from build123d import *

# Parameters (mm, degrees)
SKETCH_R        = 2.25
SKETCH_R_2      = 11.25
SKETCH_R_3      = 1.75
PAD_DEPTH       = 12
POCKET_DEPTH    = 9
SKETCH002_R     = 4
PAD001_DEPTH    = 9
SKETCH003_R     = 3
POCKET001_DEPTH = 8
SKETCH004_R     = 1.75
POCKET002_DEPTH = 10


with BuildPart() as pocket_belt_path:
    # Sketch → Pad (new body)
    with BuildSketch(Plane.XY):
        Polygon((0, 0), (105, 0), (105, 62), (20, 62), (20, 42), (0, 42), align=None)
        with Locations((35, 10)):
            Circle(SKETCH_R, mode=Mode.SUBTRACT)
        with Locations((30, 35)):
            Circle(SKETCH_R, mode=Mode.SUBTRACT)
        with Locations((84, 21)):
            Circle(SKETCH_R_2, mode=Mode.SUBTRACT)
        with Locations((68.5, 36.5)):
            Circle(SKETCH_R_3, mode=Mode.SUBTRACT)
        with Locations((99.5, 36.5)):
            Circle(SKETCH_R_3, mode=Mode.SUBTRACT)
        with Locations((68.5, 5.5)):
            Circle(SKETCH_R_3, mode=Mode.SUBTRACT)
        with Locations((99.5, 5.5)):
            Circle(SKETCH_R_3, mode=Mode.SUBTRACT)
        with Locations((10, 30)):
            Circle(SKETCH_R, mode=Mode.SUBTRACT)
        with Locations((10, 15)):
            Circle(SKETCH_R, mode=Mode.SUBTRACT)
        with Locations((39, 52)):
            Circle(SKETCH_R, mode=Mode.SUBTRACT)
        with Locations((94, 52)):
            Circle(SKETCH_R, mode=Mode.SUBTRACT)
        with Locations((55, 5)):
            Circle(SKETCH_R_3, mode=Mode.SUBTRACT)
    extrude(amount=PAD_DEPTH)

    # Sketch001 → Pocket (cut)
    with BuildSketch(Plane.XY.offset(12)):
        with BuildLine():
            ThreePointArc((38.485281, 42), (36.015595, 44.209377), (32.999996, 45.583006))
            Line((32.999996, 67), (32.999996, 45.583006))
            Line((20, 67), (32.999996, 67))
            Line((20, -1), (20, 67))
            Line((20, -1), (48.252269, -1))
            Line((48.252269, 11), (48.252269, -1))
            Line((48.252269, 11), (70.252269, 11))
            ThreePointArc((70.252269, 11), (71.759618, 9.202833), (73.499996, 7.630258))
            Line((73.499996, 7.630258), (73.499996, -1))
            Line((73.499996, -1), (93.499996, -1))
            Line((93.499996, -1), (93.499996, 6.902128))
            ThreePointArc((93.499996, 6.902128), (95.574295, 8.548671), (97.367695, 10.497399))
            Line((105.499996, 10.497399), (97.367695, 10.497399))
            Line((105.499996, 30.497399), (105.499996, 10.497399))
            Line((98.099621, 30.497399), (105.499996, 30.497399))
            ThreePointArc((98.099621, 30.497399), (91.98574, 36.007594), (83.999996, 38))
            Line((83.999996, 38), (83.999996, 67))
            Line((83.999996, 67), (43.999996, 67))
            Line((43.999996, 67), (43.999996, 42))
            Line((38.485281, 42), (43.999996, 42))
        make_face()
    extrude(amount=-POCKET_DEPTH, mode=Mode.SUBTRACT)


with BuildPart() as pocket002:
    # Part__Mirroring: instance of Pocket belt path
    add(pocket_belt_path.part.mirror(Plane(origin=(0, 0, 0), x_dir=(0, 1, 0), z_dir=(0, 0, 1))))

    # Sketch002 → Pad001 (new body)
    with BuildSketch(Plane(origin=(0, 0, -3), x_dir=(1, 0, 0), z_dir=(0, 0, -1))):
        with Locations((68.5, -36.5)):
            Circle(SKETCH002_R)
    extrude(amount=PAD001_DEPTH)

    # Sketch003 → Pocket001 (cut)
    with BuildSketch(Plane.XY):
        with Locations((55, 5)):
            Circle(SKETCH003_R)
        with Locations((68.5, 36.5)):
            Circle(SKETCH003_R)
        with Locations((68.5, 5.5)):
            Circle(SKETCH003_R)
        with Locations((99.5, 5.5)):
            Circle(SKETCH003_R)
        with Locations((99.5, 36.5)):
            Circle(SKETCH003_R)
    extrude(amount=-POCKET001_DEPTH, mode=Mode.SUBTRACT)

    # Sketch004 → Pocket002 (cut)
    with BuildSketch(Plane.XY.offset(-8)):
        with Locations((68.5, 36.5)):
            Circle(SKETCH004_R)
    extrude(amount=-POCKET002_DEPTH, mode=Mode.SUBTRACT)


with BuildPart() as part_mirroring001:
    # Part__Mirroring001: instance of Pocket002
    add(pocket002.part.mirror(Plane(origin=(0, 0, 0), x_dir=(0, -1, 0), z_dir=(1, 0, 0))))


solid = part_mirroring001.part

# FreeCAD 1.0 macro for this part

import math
import FreeCAD as App
import Part
import Sketcher
from FreeCAD import Vector

doc = App.newDocument("Part")
body = doc.addObject("PartDesign::Body", "Body")

# Sketch on XY plane
sketch1 = body.newObject("Sketcher::SketchObject", "Sketch")
sketch1.AttachmentSupport = (doc.getObject("XY_Plane"), [""])
sketch1.MapMode = "FlatFace"
sketch1.addGeometry(Part.LineSegment(Vector(0, 0, 0), Vector(105, 0, 0)), False)
sketch1.addGeometry(Part.LineSegment(Vector(105, 0, 0), Vector(105, 62, 0)), False)
sketch1.addGeometry(Part.LineSegment(Vector(105, 62, 0), Vector(20, 62, 0)), False)
sketch1.addGeometry(Part.LineSegment(Vector(20, 62, 0), Vector(20, 42, 0)), False)
sketch1.addGeometry(Part.LineSegment(Vector(20, 42, 0), Vector(0, 42, 0)), False)
sketch1.addGeometry(Part.LineSegment(Vector(0, 42, 0), Vector(0, 0, 0)), False)
sketch1.addGeometry(Part.Circle(Vector(10, 15, 0), Vector(0, 0, 1), 2.25), False)
sketch1.addGeometry(Part.Circle(Vector(35, 10, 0), Vector(0, 0, 1), 2.25), False)
sketch1.addGeometry(Part.Circle(Vector(55, 5, 0), Vector(0, 0, 1), 1.75), False)
sketch1.addGeometry(Part.Circle(Vector(68.5, 5.5, 0), Vector(0, 0, 1), 1.75), False)
sketch1.addGeometry(Part.Circle(Vector(99.5, 5.5, 0), Vector(0, 0, 1), 1.75), False)
sketch1.addGeometry(Part.Circle(Vector(84, 21, 0), Vector(0, 0, 1), 11.25), False)
sketch1.addGeometry(Part.Circle(Vector(10, 30, 0), Vector(0, 0, 1), 2.25), False)
sketch1.addGeometry(Part.Circle(Vector(30, 35, 0), Vector(0, 0, 1), 2.25), False)
sketch1.addGeometry(Part.Circle(Vector(39, 52, 0), Vector(0, 0, 1), 2.25), False)
sketch1.addGeometry(Part.Circle(Vector(68.5, 36.5, 0), Vector(0, 0, 1), 1.75), False)
sketch1.addGeometry(Part.Circle(Vector(99.5, 36.5, 0), Vector(0, 0, 1), 1.75), False)
sketch1.addGeometry(Part.Circle(Vector(94, 52, 0), Vector(0, 0, 1), 2.25), False)
sketch1.addConstraint(Sketcher.Constraint("Coincident", 0, 2, 1, 1))
sketch1.addConstraint(Sketcher.Constraint("Coincident", 1, 2, 2, 1))
sketch1.addConstraint(Sketcher.Constraint("Coincident", 2, 2, 3, 1))
sketch1.addConstraint(Sketcher.Constraint("Coincident", 3, 2, 4, 1))
sketch1.addConstraint(Sketcher.Constraint("Coincident", 4, 2, 5, 1))
sketch1.addConstraint(Sketcher.Constraint("Coincident", 5, 2, 0, 1))
sketch1.addConstraint(Sketcher.Constraint("Horizontal", 0))
sketch1.addConstraint(Sketcher.Constraint("Vertical", 1))
sketch1.addConstraint(Sketcher.Constraint("Horizontal", 2))
sketch1.addConstraint(Sketcher.Constraint("Vertical", 3))
sketch1.addConstraint(Sketcher.Constraint("Horizontal", 4))
sketch1.addConstraint(Sketcher.Constraint("Vertical", 5))
sketch1.addConstraint(Sketcher.Constraint("Coincident", 5, 2, -1, 1))
sketch1.addConstraint(Sketcher.Constraint("Equal", 6, 7))
sketch1.addConstraint(Sketcher.Constraint("Equal", 8, 9))
sketch1.addConstraint(Sketcher.Constraint("Equal", 9, 10))
sketch1.addConstraint(Sketcher.Constraint("Equal", 7, 12))
sketch1.addConstraint(Sketcher.Constraint("Equal", 12, 13))
sketch1.addConstraint(Sketcher.Constraint("Equal", 13, 14))
sketch1.addConstraint(Sketcher.Constraint("Equal", 10, 15))
sketch1.addConstraint(Sketcher.Constraint("Equal", 15, 16))
sketch1.addConstraint(Sketcher.Constraint("Equal", 14, 17))
sketch1.addConstraint(Sketcher.Constraint("Horizontal", 9, 3, 10, 3))
sketch1.addConstraint(Sketcher.Constraint("Horizontal", 15, 3, 16, 3))
sketch1.addConstraint(Sketcher.Constraint("Horizontal", 14, 3, 17, 3))
sketch1.addConstraint(Sketcher.Constraint("Vertical", 6, 3, 12, 3))
sketch1.addConstraint(Sketcher.Constraint("Vertical", 9, 3, 15, 3))
sketch1.addConstraint(Sketcher.Constraint("Vertical", 10, 3, 16, 3))
sketch1.addConstraint(Sketcher.Constraint("Equal", 4, 3))
sketch1.addConstraint(Sketcher.Constraint("Diameter", 6, 4.5))
sketch1.addConstraint(Sketcher.Constraint("Diameter", 8, 3.5))
sketch1.addConstraint(Sketcher.Constraint("Diameter", 11, 22.5))
sketch1.addConstraint(Sketcher.Constraint("DistanceX", 0, 1, 0, 2, 105.0))
sketch1.addConstraint(Sketcher.Constraint("DistanceX", 2, 2, 2, 1, 85.0))
sketch1.addConstraint(Sketcher.Constraint("DistanceY", 1, 1, 1, 2, 62.0))
sketch1.addConstraint(Sketcher.Constraint("DistanceX", -1, 1, 6, 3, 10.0))
sketch1.addConstraint(Sketcher.Constraint("DistanceY", -1, 1, 6, 3, 15.0))
sketch1.addConstraint(Sketcher.Constraint("DistanceX", -1, 1, 7, 3, 35.0))
sketch1.addConstraint(Sketcher.Constraint("DistanceY", -1, 1, 7, 3, 10.0))
sketch1.addConstraint(Sketcher.Constraint("DistanceX", -1, 1, 8, 3, 55.0))
sketch1.addConstraint(Sketcher.Constraint("DistanceY", -1, 1, 8, 3, 5.0))
sketch1.addConstraint(Sketcher.Constraint("DistanceX", -1, 1, 11, 3, 84.0))
sketch1.addConstraint(Sketcher.Constraint("DistanceY", -1, 1, 11, 3, 21.0))
sketch1.addConstraint(Sketcher.Constraint("DistanceY", -1, 1, 12, 3, 30.0))
sketch1.addConstraint(Sketcher.Constraint("DistanceX", -1, 1, 13, 3, 30.0))
sketch1.addConstraint(Sketcher.Constraint("DistanceY", -1, 1, 13, 3, 35.0))
sketch1.addConstraint(Sketcher.Constraint("DistanceX", -1, 1, 14, 3, 39.0))
sketch1.addConstraint(Sketcher.Constraint("DistanceY", -1, 1, 14, 3, 52.0))
sketch1.addConstraint(Sketcher.Constraint("DistanceX", -1, 1, 17, 3, 94.0))
sketch1.addConstraint(Sketcher.Constraint("DistanceX", 9, 3, 10, 3, 31.0))
sketch1.addConstraint(Sketcher.Constraint("DistanceY", 9, 3, 15, 3, 31.0))
sketch1.addConstraint(Sketcher.Constraint("DistanceX", -1, 1, 9, 3, 68.5))
sketch1.addConstraint(Sketcher.Constraint("DistanceY", -1, 1, 9, 3, 5.5))
pad1 = body.newObject("PartDesign::Pad", "Pad")
pad1.Profile = sketch1
pad1.Length = 12

# Sketch on XY plane
sketch2 = body.newObject("Sketcher::SketchObject", "Sketch001")
sketch2.AttachmentSupport = (doc.getObject("XY_Plane"), [""])
sketch2.MapMode = "FlatFace"
sketch2.AttachmentOffset = App.Placement(Vector(0, 0, 12), App.Rotation())
sketch2.addGeometry(Part.ArcOfCircle(Part.Circle(Vector(30.000008, 35.000013, 0), Vector(0, 0, 1), 10.999985), math.radians(39.521175), math.radians(74.173425)), False)
sketch2.addGeometry(Part.LineSegment(Vector(32.999996, 45.583006, 0), Vector(32.999996, 67, 0)), False)
sketch2.addGeometry(Part.LineSegment(Vector(32.999996, 67, 0), Vector(20, 67, 0)), False)
sketch2.addGeometry(Part.LineSegment(Vector(20, 67, 0), Vector(20, -1, 0)), False)
sketch2.addGeometry(Part.LineSegment(Vector(20, -1, 0), Vector(48.252269, -1, 0)), False)
sketch2.addGeometry(Part.LineSegment(Vector(48.252269, -1, 0), Vector(48.252269, 11, 0)), False)
sketch2.addGeometry(Part.LineSegment(Vector(48.252269, 11, 0), Vector(70.252269, 11, 0)), False)
sketch2.addGeometry(Part.ArcOfCircle(Part.Circle(Vector(83.999989, 20.999992, 0), Vector(0, 0, 1), 16.99999), math.radians(-143.968127), math.radians(-128.144509)), False)
sketch2.addGeometry(Part.LineSegment(Vector(73.499996, 7.630258, 0), Vector(73.499996, -1, 0)), False)
sketch2.addGeometry(Part.LineSegment(Vector(73.499996, -1, 0), Vector(93.499996, -1, 0)), False)
sketch2.addGeometry(Part.LineSegment(Vector(93.499996, -1, 0), Vector(93.499996, 6.902128, 0)), False)
sketch2.addGeometry(Part.ArcOfCircle(Part.Circle(Vector(83.999983, 21.000016, 0), Vector(0, 0, 1), 17.00002), math.radians(-56.025516), math.radians(-38.155674)), False)
sketch2.addGeometry(Part.LineSegment(Vector(97.367695, 10.497399, 0), Vector(105.499996, 10.497399, 0)), False)
sketch2.addGeometry(Part.LineSegment(Vector(105.499996, 10.497399, 0), Vector(105.499996, 30.497399, 0)), False)
sketch2.addGeometry(Part.LineSegment(Vector(105.499996, 30.497399, 0), Vector(98.099621, 30.497399, 0)), False)
sketch2.addGeometry(Part.ArcOfCircle(Part.Circle(Vector(83.999994, 20.999995, 0), Vector(0, 0, 1), 17.000005), math.radians(33.963915), math.radians(89.999993)), False)
sketch2.addGeometry(Part.LineSegment(Vector(83.999996, 38, 0), Vector(83.999996, 67, 0)), False)
sketch2.addGeometry(Part.LineSegment(Vector(83.999996, 67, 0), Vector(43.999996, 67, 0)), False)
sketch2.addGeometry(Part.LineSegment(Vector(43.999996, 67, 0), Vector(43.999996, 42, 0)), False)
sketch2.addGeometry(Part.LineSegment(Vector(43.999996, 42, 0), Vector(38.485281, 42, 0)), False)
sketch2.addConstraint(Sketcher.Constraint("Coincident", 0, 2, 1, 1))
sketch2.addConstraint(Sketcher.Constraint("Coincident", 1, 2, 2, 1))
sketch2.addConstraint(Sketcher.Constraint("Coincident", 2, 2, 3, 1))
sketch2.addConstraint(Sketcher.Constraint("Coincident", 3, 2, 4, 1))
sketch2.addConstraint(Sketcher.Constraint("Coincident", 4, 2, 5, 1))
sketch2.addConstraint(Sketcher.Constraint("Coincident", 5, 2, 6, 1))
sketch2.addConstraint(Sketcher.Constraint("Coincident", 6, 2, 7, 1))
sketch2.addConstraint(Sketcher.Constraint("Coincident", 7, 2, 8, 1))
sketch2.addConstraint(Sketcher.Constraint("Coincident", 8, 2, 9, 1))
sketch2.addConstraint(Sketcher.Constraint("Coincident", 9, 2, 10, 1))
sketch2.addConstraint(Sketcher.Constraint("Coincident", 10, 2, 11, 1))
sketch2.addConstraint(Sketcher.Constraint("Coincident", 11, 2, 12, 1))
sketch2.addConstraint(Sketcher.Constraint("Coincident", 12, 2, 13, 1))
sketch2.addConstraint(Sketcher.Constraint("Coincident", 13, 2, 14, 1))
sketch2.addConstraint(Sketcher.Constraint("Coincident", 14, 2, 15, 1))
sketch2.addConstraint(Sketcher.Constraint("Coincident", 15, 2, 16, 1))
sketch2.addConstraint(Sketcher.Constraint("Coincident", 16, 2, 17, 1))
sketch2.addConstraint(Sketcher.Constraint("Coincident", 17, 2, 18, 1))
sketch2.addConstraint(Sketcher.Constraint("Coincident", 18, 2, 19, 1))
sketch2.addConstraint(Sketcher.Constraint("Coincident", 19, 2, 0, 1))
sketch2.addConstraint(Sketcher.Constraint("Vertical", 1))
sketch2.addConstraint(Sketcher.Constraint("Horizontal", 2))
sketch2.addConstraint(Sketcher.Constraint("Vertical", 3))
sketch2.addConstraint(Sketcher.Constraint("Horizontal", 4))
sketch2.addConstraint(Sketcher.Constraint("Vertical", 5))
sketch2.addConstraint(Sketcher.Constraint("Horizontal", 6))
sketch2.addConstraint(Sketcher.Constraint("Vertical", 8))
sketch2.addConstraint(Sketcher.Constraint("Horizontal", 9))
sketch2.addConstraint(Sketcher.Constraint("Vertical", 10))
sketch2.addConstraint(Sketcher.Constraint("Horizontal", 12))
sketch2.addConstraint(Sketcher.Constraint("Vertical", 13))
sketch2.addConstraint(Sketcher.Constraint("Horizontal", 14))
sketch2.addConstraint(Sketcher.Constraint("Vertical", 16))
sketch2.addConstraint(Sketcher.Constraint("Horizontal", 17))
sketch2.addConstraint(Sketcher.Constraint("Vertical", 18))
sketch2.addConstraint(Sketcher.Constraint("Horizontal", 19))
sketch2.addConstraint(Sketcher.Constraint("Coincident", 15, 3, 7, 3))
sketch2.addConstraint(Sketcher.Constraint("Horizontal", 4, 2, 8, 2))
sketch2.addConstraint(Sketcher.Constraint("Horizontal", 2, 2, 16, 2))
sketch2.addConstraint(Sketcher.Constraint("Equal", 9, 13))
sketch2.addConstraint(Sketcher.Constraint("DistanceX", 6, 1, 6, 2, 22.0))
sketch2.addConstraint(Sketcher.Constraint("DistanceX", 9, 1, 9, 2, 20.0))
sketch2.addConstraint(Sketcher.Constraint("DistanceX", 17, 2, 17, 1, 40.0))
sketch2.addConstraint(Sketcher.Constraint("DistanceY", 3, 2, 3, 1, 68.0))
sketch2.addConstraint(Sketcher.Constraint("DistanceY", 5, 1, 5, 2, 12.0))
sketch2.addConstraint(Sketcher.Constraint("DistanceY", 16, 1, 16, 2, 29.0))
sketch2.addConstraint(Sketcher.Constraint("DistanceY", 18, 2, 18, 1, 25.0))
sketch2.addConstraint(Sketcher.Constraint("DistanceY", -1, 1, 1, 2, 67.0))
sketch2.addConstraint(Sketcher.Constraint("DistanceX", -1, 1, 2, 2, 20.0))
sketch2.addConstraint(Sketcher.Constraint("DistanceX", 10, 2, 12, 2, 12.0))
sketch2.addConstraint(Sketcher.Constraint("DistanceX", 1, 2, 17, 2, 11.0))
sketch2.addConstraint(Sketcher.Constraint("DistanceX", 15, 2, 13, 2, 21.5))
sketch2.addConstraint(Sketcher.Constraint("Radius", 7, 16.99999))
sketch2.addConstraint(Sketcher.Constraint("Radius", 11, 17.00002))
sketch2.addConstraint(Sketcher.Constraint("DistanceX", 12, 1, 12, 2, 8.132301))
sketch2.addConstraint(Sketcher.Constraint("Radius", 0, 10.999985))
sketch2.addConstraint(Sketcher.Constraint("Radius", 15, 17.000005))
sketch2.addConstraint(Sketcher.Constraint("DistanceX", 4, 1, 4, 2, 28.252269))
sketch2.addConstraint(Sketcher.Constraint("DistanceY", 8, 2, 8, 1, 8.630258))
sketch2.addConstraint(Sketcher.Constraint("DistanceY", 10, 1, 10, 2, 7.902128))
sketch2.addConstraint(Sketcher.Constraint("DistanceY", -1, 1, 11, 2, 10.497399))
sketch2.addConstraint(Sketcher.Constraint("DistanceX", 19, 2, 19, 1, 5.514715))
sketch2.addConstraint(Sketcher.Constraint("DistanceY", 1, 1, 1, 2, 21.416994))
pocket1 = body.newObject("PartDesign::Pocket", "Pocket")
pocket1.Profile = sketch2
pocket1.Length = 9
body2 = doc.addObject("PartDesign::Body", "Body001")
doc.recompute()

mirroring = doc.addObject("Part::Mirroring", "Mirroring")
mirroring.Source = body
mirroring.Base = Vector(0, 0, 0)
mirroring.Normal = Vector(0, 0, 1)
body2.BaseFeature = mirroring
doc.recompute()

# Sketch on XY plane
sketch3 = body2.newObject("Sketcher::SketchObject", "Sketch002")
sketch3.AttachmentSupport = (doc.getObject("XY_Plane001"), [""])
sketch3.MapMode = "FlatFace"
sketch3.AttachmentOffset = App.Placement(Vector(0, 0, -3), App.Rotation())
sketch3.addGeometry(Part.Circle(Vector(68.5, 36.5, 0), Vector(0, 0, 1), 4), False)
sketch3.addConstraint(Sketcher.Constraint("Diameter", 0, 8.0))
sketch3.addConstraint(Sketcher.Constraint("DistanceX", -1, 1, 0, 3, 68.5))
sketch3.addConstraint(Sketcher.Constraint("DistanceY", -1, 1, 0, 3, 36.5))
pad2 = body2.newObject("PartDesign::Pad", "Pad001")
pad2.Profile = sketch3
pad2.Length = 9
pad2.Reversed = True

# Sketch on XY plane
sketch4 = body2.newObject("Sketcher::SketchObject", "Sketch003")
sketch4.AttachmentSupport = (doc.getObject("XY_Plane001"), [""])
sketch4.MapMode = "FlatFace"
sketch4.addGeometry(Part.Circle(Vector(55, 5, 0), Vector(0, 0, 1), 3), False)
sketch4.addGeometry(Part.Circle(Vector(68.5, 36.5, 0), Vector(0, 0, 1), 3), False)
sketch4.addGeometry(Part.Circle(Vector(68.5, 5.5, 0), Vector(0, 0, 1), 3), False)
sketch4.addGeometry(Part.Circle(Vector(99.5, 5.5, 0), Vector(0, 0, 1), 3), False)
sketch4.addGeometry(Part.Circle(Vector(99.5, 36.5, 0), Vector(0, 0, 1), 3), False)
sketch4.addConstraint(Sketcher.Constraint("Equal", 0, 1))
sketch4.addConstraint(Sketcher.Constraint("Equal", 1, 2))
sketch4.addConstraint(Sketcher.Constraint("Equal", 2, 3))
sketch4.addConstraint(Sketcher.Constraint("Equal", 3, 4))
sketch4.addConstraint(Sketcher.Constraint("Horizontal", 2, 3, 3, 3))
sketch4.addConstraint(Sketcher.Constraint("Horizontal", 1, 3, 4, 3))
sketch4.addConstraint(Sketcher.Constraint("Vertical", 1, 3, 2, 3))
sketch4.addConstraint(Sketcher.Constraint("Vertical", 3, 3, 4, 3))
sketch4.addConstraint(Sketcher.Constraint("Diameter", 0, 6.0))
sketch4.addConstraint(Sketcher.Constraint("DistanceX", -1, 1, 0, 3, 55.0))
sketch4.addConstraint(Sketcher.Constraint("DistanceY", -1, 1, 0, 3, 5.0))
sketch4.addConstraint(Sketcher.Constraint("DistanceY", 2, 3, 1, 3, 31.0))
sketch4.addConstraint(Sketcher.Constraint("DistanceX", 2, 3, 3, 3, 31.0))
sketch4.addConstraint(Sketcher.Constraint("DistanceX", -1, 1, 1, 3, 68.5))
sketch4.addConstraint(Sketcher.Constraint("DistanceY", -1, 1, 1, 3, 36.5))
pocket2 = body2.newObject("PartDesign::Pocket", "Pocket001")
pocket2.Profile = sketch4
pocket2.Length = 8

# Sketch on XY plane
sketch5 = body2.newObject("Sketcher::SketchObject", "Sketch004")
sketch5.AttachmentSupport = (doc.getObject("XY_Plane001"), [""])
sketch5.MapMode = "FlatFace"
sketch5.AttachmentOffset = App.Placement(Vector(0, 0, -8), App.Rotation())
sketch5.addGeometry(Part.Circle(Vector(68.5, 36.5, 0), Vector(0, 0, 1), 1.75), False)
sketch5.addConstraint(Sketcher.Constraint("Diameter", 0, 3.5))
sketch5.addConstraint(Sketcher.Constraint("DistanceX", -1, 1, 0, 3, 68.5))
sketch5.addConstraint(Sketcher.Constraint("DistanceY", -1, 1, 0, 3, 36.5))
pocket3 = body2.newObject("PartDesign::Pocket", "Pocket002")
pocket3.Profile = sketch5
pocket3.Length = 10
body3 = doc.addObject("PartDesign::Body", "Body002")
doc.recompute()

mirroring2 = doc.addObject("Part::Mirroring", "Mirroring001")
mirroring2.Source = body2
mirroring2.Base = Vector(0, 0, 0)
mirroring2.Normal = Vector(1, 0, 0)
body3.BaseFeature = mirroring2
doc.recompute()
body.Visibility = False
body2.Visibility = False
mirroring.Visibility = False
mirroring2.Visibility = False

doc.recompute()
